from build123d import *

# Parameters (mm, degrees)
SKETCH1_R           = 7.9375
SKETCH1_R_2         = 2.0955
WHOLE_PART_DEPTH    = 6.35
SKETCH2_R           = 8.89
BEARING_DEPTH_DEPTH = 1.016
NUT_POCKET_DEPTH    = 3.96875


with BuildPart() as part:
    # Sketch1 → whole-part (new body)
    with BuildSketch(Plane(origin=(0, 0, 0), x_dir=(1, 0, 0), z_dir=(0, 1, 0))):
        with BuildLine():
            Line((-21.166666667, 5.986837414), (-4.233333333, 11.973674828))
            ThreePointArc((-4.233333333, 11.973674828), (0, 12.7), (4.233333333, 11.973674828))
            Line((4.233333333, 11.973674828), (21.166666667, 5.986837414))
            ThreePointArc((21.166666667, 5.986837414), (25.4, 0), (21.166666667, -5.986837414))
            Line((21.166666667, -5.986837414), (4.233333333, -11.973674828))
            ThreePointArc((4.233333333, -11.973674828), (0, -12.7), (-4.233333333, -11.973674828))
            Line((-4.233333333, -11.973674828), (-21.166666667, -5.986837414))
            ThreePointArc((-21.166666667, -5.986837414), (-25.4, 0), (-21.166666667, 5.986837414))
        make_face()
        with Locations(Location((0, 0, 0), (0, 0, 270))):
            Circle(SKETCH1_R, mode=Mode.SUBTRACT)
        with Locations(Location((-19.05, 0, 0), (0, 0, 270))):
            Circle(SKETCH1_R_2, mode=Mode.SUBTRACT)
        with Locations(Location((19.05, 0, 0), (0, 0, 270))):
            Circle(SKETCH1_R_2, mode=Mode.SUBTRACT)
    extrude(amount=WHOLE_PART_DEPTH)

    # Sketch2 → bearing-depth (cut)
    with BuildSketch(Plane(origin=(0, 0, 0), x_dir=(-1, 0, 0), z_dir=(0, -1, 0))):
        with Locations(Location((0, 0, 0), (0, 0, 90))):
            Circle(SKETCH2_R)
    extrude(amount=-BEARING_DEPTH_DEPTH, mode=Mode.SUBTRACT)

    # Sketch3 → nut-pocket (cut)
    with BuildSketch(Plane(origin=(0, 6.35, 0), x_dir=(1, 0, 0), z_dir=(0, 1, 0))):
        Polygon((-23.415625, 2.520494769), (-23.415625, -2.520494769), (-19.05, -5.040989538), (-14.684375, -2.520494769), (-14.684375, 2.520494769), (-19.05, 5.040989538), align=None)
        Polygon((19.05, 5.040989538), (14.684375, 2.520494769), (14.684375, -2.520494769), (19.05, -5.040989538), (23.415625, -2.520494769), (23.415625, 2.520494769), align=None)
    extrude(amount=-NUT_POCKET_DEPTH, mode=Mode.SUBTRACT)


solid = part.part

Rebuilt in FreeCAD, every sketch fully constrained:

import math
import FreeCAD as App
import Part
import Sketcher
from FreeCAD import Vector
Q = App.Units.Quantity

doc = App.newDocument("Part")
body = doc.addObject("PartDesign::Body", "Body")

sketch1 = body.newObject("Sketcher::SketchObject", "Sketch")
sketch1.AttachmentSupport = (doc.getObject("XZ_Plane"), [""])
sketch1.MapMode = "FlatFace"
sketch1.addGeometry(Part.LineSegment(Vector(-4.2, -12, 0), Vector(-21.2, -6, 0)), False)
sketch1.addGeometry(Part.ArcOfCircle(Part.Circle(Vector(-19.1, 0, 0), Vector(0, 0, 1), 6.3), math.radians(109), math.radians(251)), False)
sketch1.addGeometry(Part.LineSegment(Vector(-21.2, 6, 0), Vector(-4.2, 12, 0)), False)
sketch1.addGeometry(Part.ArcOfCircle(Part.Circle(Vector(0, 0, 0), Vector(0, 0, 1), 12.7), math.radians(71), math.radians(109)), False)
sketch1.addGeometry(Part.LineSegment(Vector(4.2, 12, 0), Vector(21.2, 6, 0)), False)
sketch1.addGeometry(Part.ArcOfCircle(Part.Circle(Vector(19.1, 0, 0), Vector(0, 0, 1), 6.3), math.radians(-71), math.radians(71)), False)
sketch1.addGeometry(Part.LineSegment(Vector(21.2, -6, 0), Vector(4.2, -12, 0)), False)
sketch1.addGeometry(Part.ArcOfCircle(Part.Circle(Vector(0, 0, 0), Vector(0, 0, 1), 12.7), math.radians(-109), math.radians(-71)), False)
sketch1.addGeometry(Part.Circle(Vector(19.1, 0, 0), Vector(0, 0, 1), 2.1), False)
sketch1.addGeometry(Part.Circle(Vector(0, 0, 0), Vector(0, 0, 1), 7.9), False)
sketch1.addGeometry(Part.Circle(Vector(-19.1, 0, 0), Vector(0, 0, 1), 2.1), False)
sketch1.addConstraint(Sketcher.Constraint("Tangent", 0, 2, 1, 2))
sketch1.addConstraint(Sketcher.Constraint("Tangent", 1, 1, 2, 1))
sketch1.addConstraint(Sketcher.Constraint("Tangent", 2, 2, 3, 2))
sketch1.addConstraint(Sketcher.Constraint("Tangent", 3, 1, 4, 1))
sketch1.addConstraint(Sketcher.Constraint("Tangent", 4, 2, 5, 2))
sketch1.addConstraint(Sketcher.Constraint("Tangent", 5, 1, 6, 1))
sketch1.addConstraint(Sketcher.Constraint("Tangent", 6, 2, 7, 2))
sketch1.addConstraint(Sketcher.Constraint("Tangent", 7, 1, 0, 1))
sketch1.addConstraint(Sketcher.Constraint("Coincident", 3, 3, -1, 1))
sketch1.addConstraint(Sketcher.Constraint("Coincident", 7, 3, -1, 1))
sketch1.addConstraint(Sketcher.Constraint("Coincident", 9, 3, -1, 1))
sketch1.addConstraint(Sketcher.Constraint("Coincident", 8, 3, 5, 3))
sketch1.addConstraint(Sketcher.Constraint("Coincident", 10, 3, 1, 3))
sketch1.addConstraint(Sketcher.Constraint("Equal", 1, 5))
sketch1.addConstraint(Sketcher.Constraint("Equal", 3, 7))
sketch1.addConstraint(Sketcher.Constraint("Equal", 8, 10))
sketch1.addConstraint(Sketcher.Constraint("Symmetric", 1, 3, 5, 3, -1, 1))
sketch1.addConstraint(Sketcher.Constraint("PointOnObject", 1, 3, -1))
sketch1.addConstraint(Sketcher.Constraint("Radius", 3, Q("0.5 in")))
sketch1.addConstraint(Sketcher.Constraint("Radius", 1, Q("0.25 in")))
sketch1.addConstraint(Sketcher.Constraint("Diameter", 8, Q("0.165 in")))
sketch1.addConstraint(Sketcher.Constraint("Diameter", 9, Q("0.625 in")))
sketch1.addConstraint(Sketcher.Constraint("DistanceX", 1, 3, 5, 3, Q("1.5 in")))
pad1 = body.newObject("PartDesign::Pad", "Pad")
pad1.Profile = sketch1
pad1.Length = Q("0.25 in")
pad1.Reversed = True

sketch2 = body.newObject("Sketcher::SketchObject", "Sketch001")
sketch2.AttachmentSupport = (doc.getObject("XZ_Plane"), [""])
sketch2.MapMode = "FlatFace"
sketch2.addGeometry(Part.Circle(Vector(0, 0, 0), Vector(0, 0, 1), 9), False)
sketch2.addConstraint(Sketcher.Constraint("Coincident", 0, 3, -1, 1))
sketch2.addConstraint(Sketcher.Constraint("Diameter", 0, Q("0.7 in")))
pocket1 = body.newObject("PartDesign::Pocket", "Pocket")
pocket1.Profile = sketch2
pocket1.Length = Q("0.04 in")

sketch3 = body.newObject("Sketcher::SketchObject", "Sketch002")
sketch3.AttachmentSupport = (doc.getObject("XZ_Plane"), [""])
sketch3.MapMode = "FlatFace"
sketch3.AttachmentOffset = App.Placement(Vector(0, 0, -0.25 * 25.4), App.Rotation())
sketch3.addGeometry(Part.LineSegment(Vector(-23, -3, 0), Vector(-23, 3, 0)), False)
sketch3.addGeometry(Part.LineSegment(Vector(-23, 3, 0), Vector(-19, 5, 0)), False)
sketch3.addGeometry(Part.LineSegment(Vector(-19, 5, 0), Vector(-15, 3, 0)), False)
sketch3.addGeometry(Part.LineSegment(Vector(-15, 3, 0), Vector(-15, -3, 0)), False)
sketch3.addGeometry(Part.LineSegment(Vector(-15, -3, 0), Vector(-19, -5, 0)), False)
sketch3.addGeometry(Part.LineSegment(Vector(-19, -5, 0), Vector(-23, -3, 0)), False)
sketch3.addGeometry(Part.LineSegment(Vector(19, -5, 0), Vector(15, -3, 0)), False)
sketch3.addGeometry(Part.LineSegment(Vector(15, -3, 0), Vector(15, 3, 0)), False)
sketch3.addGeometry(Part.LineSegment(Vector(15, 3, 0), Vector(19, 5, 0)), False)
sketch3.addGeometry(Part.LineSegment(Vector(19, 5, 0), Vector(23, 3, 0)), False)
sketch3.addGeometry(Part.LineSegment(Vector(23, 3, 0), Vector(23, -3, 0)), False)
sketch3.addGeometry(Part.LineSegment(Vector(23, -3, 0), Vector(19, -5, 0)), False)
sketch3.addConstraint(Sketcher.Constraint("Coincident", 0, 2, 1, 1))
sketch3.addConstraint(Sketcher.Constraint("Coincident", 1, 2, 2, 1))
sketch3.addConstraint(Sketcher.Constraint("Coincident", 2, 2, 3, 1))
sketch3.addConstraint(Sketcher.Constraint("Coincident", 3, 2, 4, 1))
sketch3.addConstraint(Sketcher.Constraint("Coincident", 4, 2, 5, 1))
sketch3.addConstraint(Sketcher.Constraint("Coincident", 5, 2, 0, 1))
sketch3.addConstraint(Sketcher.Constraint("Coincident", 6, 2, 7, 1))
sketch3.addConstraint(Sketcher.Constraint("Coincident", 7, 2, 8, 1))
sketch3.addConstraint(Sketcher.Constraint("Coincident", 8, 2, 9, 1))
sketch3.addConstraint(Sketcher.Constraint("Coincident", 9, 2, 10, 1))
sketch3.addConstraint(Sketcher.Constraint("Coincident", 10, 2, 11, 1))
sketch3.addConstraint(Sketcher.Constraint("Coincident", 11, 2, 6, 1))
sketch3.addConstraint(Sketcher.Constraint("Vertical", 0))
sketch3.addConstraint(Sketcher.Constraint("Vertical", 3))
sketch3.addConstraint(Sketcher.Constraint("Vertical", 7))
sketch3.addConstraint(Sketcher.Constraint("Vertical", 10))
sketch3.addConstraint(Sketcher.Constraint("Symmetric", 2, 2, 6, 2, -1, 1))
sketch3.addConstraint(Sketcher.Constraint("Symmetric", 4, 2, 8, 2, -1, 1))
sketch3.addConstraint(Sketcher.Constraint("Symmetric", 5, 2, 9, 2, -1, 1))
sketch3.addConstraint(Sketcher.Constraint("Symmetric", 1, 2, 11, 2, -1, 1))
sketch3.addConstraint(Sketcher.Constraint("Symmetric", 1, 2, 8, 2, -2))
sketch3.addConstraint(Sketcher.Constraint("Parallel", 1, 4))
sketch3.addConstraint(Sketcher.Constraint("Parallel", 2, 5))
sketch3.addConstraint(Sketcher.Constraint("Parallel", 4, 8))
sketch3.addConstraint(Sketcher.Constraint("Parallel", 8, 11))
sketch3.addConstraint(Sketcher.Constraint("Horizontal", 0, 2, 2, 2))
sketch3.addConstraint(Sketcher.Constraint("Horizontal", 3, 2, 5, 2))
sketch3.addConstraint(Sketcher.Constraint("Angle", 1, Q("30 deg")))
sketch3.addConstraint(Sketcher.Constraint("DistanceX", 5, 2, 6, 2, Q("1.5 in")))
sketch3.addConstraint(Sketcher.Constraint("DistanceX", 0, 2, -1, 1, Q("0.921875 in")))
sketch3.addConstraint(Sketcher.Constraint("DistanceY", 0, 1, 0, 2, Q("5.04099 mm")))
pocket2 = body.newObject("PartDesign::Pocket", "Pocket001")
pocket2.Profile = sketch3
pocket2.Length = Q("0.15625 in")
pocket2.Reversed = True

doc.recompute()
